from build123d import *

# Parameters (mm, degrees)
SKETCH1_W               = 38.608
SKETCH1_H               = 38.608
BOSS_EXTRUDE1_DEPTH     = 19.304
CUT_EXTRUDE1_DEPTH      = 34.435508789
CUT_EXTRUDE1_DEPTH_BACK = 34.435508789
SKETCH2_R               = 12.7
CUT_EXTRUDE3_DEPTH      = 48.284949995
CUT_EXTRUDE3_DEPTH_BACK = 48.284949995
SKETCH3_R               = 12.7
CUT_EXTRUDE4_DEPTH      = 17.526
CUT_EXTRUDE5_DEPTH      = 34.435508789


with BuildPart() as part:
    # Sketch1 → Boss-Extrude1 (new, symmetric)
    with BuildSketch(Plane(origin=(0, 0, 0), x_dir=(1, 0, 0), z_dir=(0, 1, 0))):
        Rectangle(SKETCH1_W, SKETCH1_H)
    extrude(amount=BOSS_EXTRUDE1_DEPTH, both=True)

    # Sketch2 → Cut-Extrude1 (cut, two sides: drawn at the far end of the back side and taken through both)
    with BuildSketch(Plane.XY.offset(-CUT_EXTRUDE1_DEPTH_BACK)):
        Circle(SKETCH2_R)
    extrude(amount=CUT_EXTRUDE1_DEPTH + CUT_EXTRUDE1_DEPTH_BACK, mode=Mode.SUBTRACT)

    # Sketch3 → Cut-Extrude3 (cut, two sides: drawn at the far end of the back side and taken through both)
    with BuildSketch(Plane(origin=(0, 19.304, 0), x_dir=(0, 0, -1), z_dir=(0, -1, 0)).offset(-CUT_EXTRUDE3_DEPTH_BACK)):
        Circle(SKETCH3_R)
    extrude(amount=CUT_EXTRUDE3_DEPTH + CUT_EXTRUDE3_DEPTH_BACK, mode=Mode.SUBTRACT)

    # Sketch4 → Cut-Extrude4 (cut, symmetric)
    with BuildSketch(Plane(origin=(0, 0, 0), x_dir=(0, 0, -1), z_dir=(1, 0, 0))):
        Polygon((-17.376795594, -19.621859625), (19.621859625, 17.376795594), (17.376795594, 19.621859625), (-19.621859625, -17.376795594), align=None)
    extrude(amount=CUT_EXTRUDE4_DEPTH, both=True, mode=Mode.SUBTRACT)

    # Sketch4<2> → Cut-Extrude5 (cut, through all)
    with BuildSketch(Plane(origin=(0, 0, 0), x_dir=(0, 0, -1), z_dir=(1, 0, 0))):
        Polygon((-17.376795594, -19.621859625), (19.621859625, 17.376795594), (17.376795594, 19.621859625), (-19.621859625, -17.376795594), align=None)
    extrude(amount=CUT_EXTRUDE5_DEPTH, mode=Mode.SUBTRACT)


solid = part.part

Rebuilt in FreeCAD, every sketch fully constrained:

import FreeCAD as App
import Part
import Sketcher
Q = App.Units.Quantity

doc = App.newDocument("Part")
body = doc.addObject("PartDesign::Body", "Body")

# Sketch on XZ plane
sketch1 = doc.addObject("Sketcher::SketchObject", "Sketch")
body.addObject(sketch1)
sketch1.AttachmentSupport = (doc.XZ_Plane, [""])
sketch1.MapMode = "FlatFace"
sketch1.addGeometry([
    Part.LineSegment(App.Vector(-19, -19, 0), App.Vector(-19, 19, 0)),
    Part.LineSegment(App.Vector(-19, 19, 0), App.Vector(19, 19, 0)),
    Part.LineSegment(App.Vector(19, 19, 0), App.Vector(19, -19, 0)),
    Part.LineSegment(App.Vector(19, -19, 0), App.Vector(-19, -19, 0)),
], False)
sketch1.addConstraint([
    Sketcher.Constraint("Coincident", 0, 2, 1, 1),
    Sketcher.Constraint("Coincident", 1, 2, 2, 1),
    Sketcher.Constraint("Coincident", 2, 2, 3, 1),
    Sketcher.Constraint("Coincident", 3, 2, 0, 1),
    Sketcher.Constraint("Vertical", 0),
    Sketcher.Constraint("Horizontal", 1),
    Sketcher.Constraint("Vertical", 2),
    Sketcher.Constraint("Horizontal", 3),
    Sketcher.Constraint("Symmetric", 0, 2, 2, 2, -1, 1),
    Sketcher.Constraint("Equal", 3, 0),
    Sketcher.Constraint("DistanceX", 1, 1, 1, 2, Q("1.52 in")),
])
pad1 = doc.addObject("PartDesign::Pad", "Pad")
body.addObject(pad1)
pad1.Profile = sketch1
pad1.Length = Q("1.52 in")
pad1.Midplane = True

# Sketch on XY plane
sketch2 = doc.addObject("Sketcher::SketchObject", "Sketch001")
body.addObject(sketch2)
sketch2.AttachmentSupport = (doc.XY_Plane, [""])
sketch2.MapMode = "FlatFace"
sketch2.addGeometry(Part.Circle(App.Vector(0, 0, 0), App.Vector(0, 0, 1), 13), False)
sketch2.addConstraint([
    Sketcher.Constraint("Coincident", 0, 3, -1, 1),
    Sketcher.Constraint("Diameter", 0, Q("1 in")),
])
pocket1 = doc.addObject("PartDesign::Pocket", "Pocket")
body.addObject(pocket1)
pocket1.Profile = sketch2
pocket1.Type = "ThroughAll"
pocket1.Midplane = True

# Sketch on XZ plane
sketch3 = doc.addObject("Sketcher::SketchObject", "Sketch002")
body.addObject(sketch3)
sketch3.AttachmentSupport = (doc.XZ_Plane, [""])
sketch3.MapMode = "FlatFace"
sketch3.AttachmentOffset = App.Placement(App.Vector(0, 0, -0.76 * 25.4), App.Rotation())
sketch3.addGeometry(Part.Circle(App.Vector(0, 0, 0), App.Vector(0, 0, 1), 13), False)
sketch3.addConstraint([
    Sketcher.Constraint("Coincident", 0, 3, -1, 1),
    Sketcher.Constraint("Diameter", 0, Q("1 in")),
])
pocket2 = doc.addObject("PartDesign::Pocket", "Pocket001")
body.addObject(pocket2)
pocket2.Profile = sketch3
pocket2.Type = "ThroughAll"
pocket2.Midplane = True

# Sketch on YZ plane
sketch4 = doc.addObject("Sketcher::SketchObject", "Sketch003")
body.addObject(sketch4)
sketch4.AttachmentSupport = (doc.YZ_Plane, [""])
sketch4.MapMode = "FlatFace"
sketch4.addGeometry([
    Part.LineSegment(App.Vector(-19.6, 17.4, 0), App.Vector(17.4, -19.6, 0)),
    Part.LineSegment(App.Vector(17.4, -19.6, 0), App.Vector(19.6, -17.4, 0)),
    Part.LineSegment(App.Vector(19.6, -17.4, 0), App.Vector(-17.4, 19.6, 0)),
    Part.LineSegment(App.Vector(-17.4, 19.6, 0), App.Vector(-19.6, 17.4, 0)),
], False)
sketch4.addConstraint([
    Sketcher.Constraint("Coincident", 0, 2, 1, 1),
    Sketcher.Constraint("Coincident", 1, 2, 2, 1),
    Sketcher.Constraint("Coincident", 2, 2, 3, 1),
    Sketcher.Constraint("Coincident", 3, 2, 0, 1),
    Sketcher.Constraint("Symmetric", 0, 2, 2, 2, -1, 1),
    Sketcher.Constraint("Symmetric", 1, 2, 3, 2, -1, 1),
    Sketcher.Constraint("Perpendicular", 0, 1),
    Sketcher.Constraint("Angle", 0, Q("-45 deg")),
    Sketcher.Constraint("Distance", 0, Q("2.06 in")),
    Sketcher.Constraint("Distance", 1, Q("0.125 in")),
])
pocket3 = doc.addObject("PartDesign::Pocket", "Pocket002")
body.addObject(pocket3)
pocket3.Profile = sketch4
pocket3.Length = Q("1.38 in")
pocket3.Midplane = True

# Sketch on YZ plane
sketch5 = doc.addObject("Sketcher::SketchObject", "Sketch004")
body.addObject(sketch5)
sketch5.AttachmentSupport = (doc.YZ_Plane, [""])
sketch5.MapMode = "FlatFace"
sketch5.addGeometry([
    Part.LineSegment(App.Vector(-19.6, 17.4, 0), App.Vector(17.4, -19.6, 0)),
    Part.LineSegment(App.Vector(17.4, -19.6, 0), App.Vector(19.6, -17.4, 0)),
    Part.LineSegment(App.Vector(19.6, -17.4, 0), App.Vector(-17.4, 19.6, 0)),
    Part.LineSegment(App.Vector(-17.4, 19.6, 0), App.Vector(-19.6, 17.4, 0)),
], False)
sketch5.addConstraint([
    Sketcher.Constraint("Coincident", 0, 2, 1, 1),
    Sketcher.Constraint("Coincident", 1, 2, 2, 1),
    Sketcher.Constraint("Coincident", 2, 2, 3, 1),
    Sketcher.Constraint("Coincident", 3, 2, 0, 1),
    Sketcher.Constraint("Symmetric", 0, 2, 2, 2, -1, 1),
    Sketcher.Constraint("Symmetric", 1, 2, 3, 2, -1, 1),
    Sketcher.Constraint("Perpendicular", 0, 1),
    Sketcher.Constraint("Angle", 0, Q("-45 deg")),
    Sketcher.Constraint("Distance", 0, Q("2.06 in")),
    Sketcher.Constraint("Distance", 1, Q("0.125 in")),
])
pocket4 = doc.addObject("PartDesign::Pocket", "Pocket003")
body.addObject(pocket4)
pocket4.Profile = sketch5
pocket4.Type = "ThroughAll"
pocket4.Reversed = True

doc.recompute()
